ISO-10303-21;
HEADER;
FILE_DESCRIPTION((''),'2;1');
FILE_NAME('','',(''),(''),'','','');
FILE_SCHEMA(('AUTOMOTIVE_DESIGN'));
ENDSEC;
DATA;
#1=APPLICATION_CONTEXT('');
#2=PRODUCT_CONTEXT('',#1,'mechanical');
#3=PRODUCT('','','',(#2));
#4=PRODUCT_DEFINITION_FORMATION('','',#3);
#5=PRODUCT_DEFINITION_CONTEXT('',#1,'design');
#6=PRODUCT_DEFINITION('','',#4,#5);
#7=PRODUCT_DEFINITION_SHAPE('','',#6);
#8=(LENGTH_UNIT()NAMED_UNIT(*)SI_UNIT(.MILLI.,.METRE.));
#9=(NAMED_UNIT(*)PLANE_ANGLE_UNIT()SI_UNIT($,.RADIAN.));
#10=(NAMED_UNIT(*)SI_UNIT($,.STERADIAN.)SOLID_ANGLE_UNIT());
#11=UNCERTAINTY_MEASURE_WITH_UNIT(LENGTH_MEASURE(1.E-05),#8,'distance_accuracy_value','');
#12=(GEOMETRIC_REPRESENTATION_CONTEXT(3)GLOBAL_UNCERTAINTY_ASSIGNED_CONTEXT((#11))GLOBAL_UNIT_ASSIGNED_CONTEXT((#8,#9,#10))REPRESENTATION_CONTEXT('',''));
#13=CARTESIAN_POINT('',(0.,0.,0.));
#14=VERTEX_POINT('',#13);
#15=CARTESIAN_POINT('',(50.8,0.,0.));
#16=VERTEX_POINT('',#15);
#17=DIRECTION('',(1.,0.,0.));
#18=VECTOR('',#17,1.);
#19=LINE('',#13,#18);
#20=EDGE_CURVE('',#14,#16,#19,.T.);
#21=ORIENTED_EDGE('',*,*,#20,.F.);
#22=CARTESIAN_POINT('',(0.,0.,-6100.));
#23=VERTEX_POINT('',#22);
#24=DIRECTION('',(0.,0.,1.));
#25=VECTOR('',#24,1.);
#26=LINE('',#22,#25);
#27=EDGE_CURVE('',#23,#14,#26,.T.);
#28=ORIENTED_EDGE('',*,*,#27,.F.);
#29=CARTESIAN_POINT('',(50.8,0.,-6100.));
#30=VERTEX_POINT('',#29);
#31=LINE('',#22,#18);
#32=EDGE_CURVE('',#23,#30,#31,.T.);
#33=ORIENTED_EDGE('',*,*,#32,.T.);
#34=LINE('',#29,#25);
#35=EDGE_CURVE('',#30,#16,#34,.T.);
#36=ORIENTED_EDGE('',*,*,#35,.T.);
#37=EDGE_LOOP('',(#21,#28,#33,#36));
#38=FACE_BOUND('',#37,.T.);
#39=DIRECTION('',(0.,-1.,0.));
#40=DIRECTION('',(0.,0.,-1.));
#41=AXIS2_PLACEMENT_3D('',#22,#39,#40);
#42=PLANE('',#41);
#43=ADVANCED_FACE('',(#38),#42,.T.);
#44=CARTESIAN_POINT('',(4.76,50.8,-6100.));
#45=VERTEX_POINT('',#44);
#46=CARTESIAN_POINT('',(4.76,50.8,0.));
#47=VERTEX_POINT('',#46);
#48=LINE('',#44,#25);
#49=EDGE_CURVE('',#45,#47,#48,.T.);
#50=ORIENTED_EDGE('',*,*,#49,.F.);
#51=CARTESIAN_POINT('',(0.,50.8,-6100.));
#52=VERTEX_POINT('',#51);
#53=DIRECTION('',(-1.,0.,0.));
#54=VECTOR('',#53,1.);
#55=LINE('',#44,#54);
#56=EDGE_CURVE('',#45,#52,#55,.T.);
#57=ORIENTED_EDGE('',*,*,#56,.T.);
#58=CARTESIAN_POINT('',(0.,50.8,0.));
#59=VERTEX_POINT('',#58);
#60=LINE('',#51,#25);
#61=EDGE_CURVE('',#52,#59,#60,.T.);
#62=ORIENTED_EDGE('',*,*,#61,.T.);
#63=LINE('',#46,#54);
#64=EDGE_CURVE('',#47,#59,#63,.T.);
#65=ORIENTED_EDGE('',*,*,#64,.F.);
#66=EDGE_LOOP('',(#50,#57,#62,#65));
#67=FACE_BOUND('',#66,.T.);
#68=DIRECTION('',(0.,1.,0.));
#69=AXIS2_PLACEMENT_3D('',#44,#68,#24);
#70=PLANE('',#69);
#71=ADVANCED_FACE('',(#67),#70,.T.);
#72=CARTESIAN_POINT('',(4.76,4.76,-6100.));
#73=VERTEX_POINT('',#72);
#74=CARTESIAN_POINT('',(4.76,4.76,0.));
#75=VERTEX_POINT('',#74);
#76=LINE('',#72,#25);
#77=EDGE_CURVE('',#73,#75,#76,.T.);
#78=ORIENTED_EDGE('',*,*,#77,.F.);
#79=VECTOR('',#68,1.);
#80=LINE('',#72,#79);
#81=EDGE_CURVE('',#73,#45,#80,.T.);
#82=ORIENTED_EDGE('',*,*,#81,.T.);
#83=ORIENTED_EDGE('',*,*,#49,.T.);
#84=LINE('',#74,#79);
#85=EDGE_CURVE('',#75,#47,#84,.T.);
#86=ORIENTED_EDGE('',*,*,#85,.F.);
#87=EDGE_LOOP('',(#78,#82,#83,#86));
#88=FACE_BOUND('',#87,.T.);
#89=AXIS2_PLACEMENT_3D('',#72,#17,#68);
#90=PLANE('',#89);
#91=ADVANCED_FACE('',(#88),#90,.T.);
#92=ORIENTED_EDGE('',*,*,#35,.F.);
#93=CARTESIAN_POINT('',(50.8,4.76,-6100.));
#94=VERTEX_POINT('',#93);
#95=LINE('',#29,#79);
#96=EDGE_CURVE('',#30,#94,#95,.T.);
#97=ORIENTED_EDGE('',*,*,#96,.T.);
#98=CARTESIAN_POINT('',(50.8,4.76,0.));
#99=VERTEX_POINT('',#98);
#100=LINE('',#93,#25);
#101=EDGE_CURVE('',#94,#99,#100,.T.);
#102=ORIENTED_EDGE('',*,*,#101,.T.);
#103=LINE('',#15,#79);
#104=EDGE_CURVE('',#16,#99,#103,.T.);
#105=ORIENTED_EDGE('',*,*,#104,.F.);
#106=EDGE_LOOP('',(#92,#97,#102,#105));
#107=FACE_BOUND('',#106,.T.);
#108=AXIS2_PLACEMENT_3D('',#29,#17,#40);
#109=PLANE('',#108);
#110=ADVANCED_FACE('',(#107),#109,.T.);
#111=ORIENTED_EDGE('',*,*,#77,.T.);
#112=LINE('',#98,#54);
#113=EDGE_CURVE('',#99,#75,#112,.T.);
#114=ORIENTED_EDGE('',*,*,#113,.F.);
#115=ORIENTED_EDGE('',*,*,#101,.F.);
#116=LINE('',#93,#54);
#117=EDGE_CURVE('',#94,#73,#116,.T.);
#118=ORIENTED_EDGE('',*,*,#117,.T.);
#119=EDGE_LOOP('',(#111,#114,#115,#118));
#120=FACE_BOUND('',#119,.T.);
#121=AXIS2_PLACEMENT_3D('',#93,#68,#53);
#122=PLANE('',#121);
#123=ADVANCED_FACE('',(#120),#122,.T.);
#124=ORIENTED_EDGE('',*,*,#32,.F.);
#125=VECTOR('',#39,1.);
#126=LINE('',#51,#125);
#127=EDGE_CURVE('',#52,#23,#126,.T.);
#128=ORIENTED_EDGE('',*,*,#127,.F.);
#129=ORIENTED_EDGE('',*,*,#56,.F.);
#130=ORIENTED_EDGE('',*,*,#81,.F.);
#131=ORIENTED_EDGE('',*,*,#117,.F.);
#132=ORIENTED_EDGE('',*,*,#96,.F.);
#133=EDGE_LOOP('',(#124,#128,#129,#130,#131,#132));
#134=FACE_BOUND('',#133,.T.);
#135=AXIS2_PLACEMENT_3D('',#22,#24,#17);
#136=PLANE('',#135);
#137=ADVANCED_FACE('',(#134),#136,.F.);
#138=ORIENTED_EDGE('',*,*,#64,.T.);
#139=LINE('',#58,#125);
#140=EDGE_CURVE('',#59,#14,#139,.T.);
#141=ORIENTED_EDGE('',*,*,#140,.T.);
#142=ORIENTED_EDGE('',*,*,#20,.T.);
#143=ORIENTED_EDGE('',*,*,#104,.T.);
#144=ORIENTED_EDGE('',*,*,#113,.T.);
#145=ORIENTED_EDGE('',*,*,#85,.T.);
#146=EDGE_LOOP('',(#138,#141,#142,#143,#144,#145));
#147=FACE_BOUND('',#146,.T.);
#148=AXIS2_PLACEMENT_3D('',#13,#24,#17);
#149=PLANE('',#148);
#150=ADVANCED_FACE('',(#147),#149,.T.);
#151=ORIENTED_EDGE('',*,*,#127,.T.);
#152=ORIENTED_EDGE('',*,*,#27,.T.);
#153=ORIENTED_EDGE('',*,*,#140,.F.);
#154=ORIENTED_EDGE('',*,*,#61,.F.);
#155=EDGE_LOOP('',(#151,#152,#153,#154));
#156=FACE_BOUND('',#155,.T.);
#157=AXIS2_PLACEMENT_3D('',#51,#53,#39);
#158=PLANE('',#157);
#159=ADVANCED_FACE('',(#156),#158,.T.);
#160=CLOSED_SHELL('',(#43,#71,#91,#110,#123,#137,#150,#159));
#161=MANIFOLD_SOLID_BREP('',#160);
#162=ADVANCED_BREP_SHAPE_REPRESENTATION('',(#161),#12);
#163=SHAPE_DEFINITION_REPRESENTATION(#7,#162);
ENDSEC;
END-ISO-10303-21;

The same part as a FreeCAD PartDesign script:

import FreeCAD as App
import Part
import Sketcher
from FreeCAD import Vector
Q = App.Units.Quantity

doc = App.newDocument("Part")
body = doc.addObject("PartDesign::Body", "Body")

sketch1 = body.newObject("Sketcher::SketchObject", "Sketch")
sketch1.AttachmentSupport = (doc.getObject("XY_Plane"), [""])
sketch1.MapMode = "FlatFace"
sketch1.addGeometry([
    Part.LineSegment(Vector(0, 50.8, 0), Vector(0, 0, 0)),
    Part.LineSegment(Vector(0, 0, 0), Vector(50.8, 0, 0)),
    Part.LineSegment(Vector(50.8, 0, 0), Vector(50.8, 4.8, 0)),
    Part.LineSegment(Vector(50.8, 4.8, 0), Vector(4.8, 4.8, 0)),
    Part.LineSegment(Vector(4.8, 4.8, 0), Vector(4.8, 50.8, 0)),
    Part.LineSegment(Vector(4.8, 50.8, 0), Vector(0, 50.8, 0)),
], False)
sketch1.addConstraint([
    Sketcher.Constraint("Coincident", 0, 2, 1, 1),
    Sketcher.Constraint("Coincident", 1, 2, 2, 1),
    Sketcher.Constraint("Coincident", 2, 2, 3, 1),
    Sketcher.Constraint("Coincident", 3, 2, 4, 1),
    Sketcher.Constraint("Coincident", 4, 2, 5, 1),
    Sketcher.Constraint("Coincident", 5, 2, 0, 1),
    Sketcher.Constraint("Vertical", 0),
    Sketcher.Constraint("Horizontal", 1),
    Sketcher.Constraint("Vertical", 2),
    Sketcher.Constraint("Horizontal", 3),
    Sketcher.Constraint("Vertical", 4),
    Sketcher.Constraint("Horizontal", 5),
    Sketcher.Constraint("Coincident", 0, 2, -1, 1),
    Sketcher.Constraint("Equal", 1, 0),
    Sketcher.Constraint("Equal", 5, 2),
    Sketcher.Constraint("DistanceX", 1, 1, 1, 2, Q("50.8 mm")),
    Sketcher.Constraint("DistanceX", 3, 2, 3, 1, Q("46.04 mm")),
])
pad1 = body.newObject("PartDesign::Pad", "Pad")
pad1.Profile = sketch1
pad1.Length = 6100
pad1.Reversed = True

doc.recompute()
